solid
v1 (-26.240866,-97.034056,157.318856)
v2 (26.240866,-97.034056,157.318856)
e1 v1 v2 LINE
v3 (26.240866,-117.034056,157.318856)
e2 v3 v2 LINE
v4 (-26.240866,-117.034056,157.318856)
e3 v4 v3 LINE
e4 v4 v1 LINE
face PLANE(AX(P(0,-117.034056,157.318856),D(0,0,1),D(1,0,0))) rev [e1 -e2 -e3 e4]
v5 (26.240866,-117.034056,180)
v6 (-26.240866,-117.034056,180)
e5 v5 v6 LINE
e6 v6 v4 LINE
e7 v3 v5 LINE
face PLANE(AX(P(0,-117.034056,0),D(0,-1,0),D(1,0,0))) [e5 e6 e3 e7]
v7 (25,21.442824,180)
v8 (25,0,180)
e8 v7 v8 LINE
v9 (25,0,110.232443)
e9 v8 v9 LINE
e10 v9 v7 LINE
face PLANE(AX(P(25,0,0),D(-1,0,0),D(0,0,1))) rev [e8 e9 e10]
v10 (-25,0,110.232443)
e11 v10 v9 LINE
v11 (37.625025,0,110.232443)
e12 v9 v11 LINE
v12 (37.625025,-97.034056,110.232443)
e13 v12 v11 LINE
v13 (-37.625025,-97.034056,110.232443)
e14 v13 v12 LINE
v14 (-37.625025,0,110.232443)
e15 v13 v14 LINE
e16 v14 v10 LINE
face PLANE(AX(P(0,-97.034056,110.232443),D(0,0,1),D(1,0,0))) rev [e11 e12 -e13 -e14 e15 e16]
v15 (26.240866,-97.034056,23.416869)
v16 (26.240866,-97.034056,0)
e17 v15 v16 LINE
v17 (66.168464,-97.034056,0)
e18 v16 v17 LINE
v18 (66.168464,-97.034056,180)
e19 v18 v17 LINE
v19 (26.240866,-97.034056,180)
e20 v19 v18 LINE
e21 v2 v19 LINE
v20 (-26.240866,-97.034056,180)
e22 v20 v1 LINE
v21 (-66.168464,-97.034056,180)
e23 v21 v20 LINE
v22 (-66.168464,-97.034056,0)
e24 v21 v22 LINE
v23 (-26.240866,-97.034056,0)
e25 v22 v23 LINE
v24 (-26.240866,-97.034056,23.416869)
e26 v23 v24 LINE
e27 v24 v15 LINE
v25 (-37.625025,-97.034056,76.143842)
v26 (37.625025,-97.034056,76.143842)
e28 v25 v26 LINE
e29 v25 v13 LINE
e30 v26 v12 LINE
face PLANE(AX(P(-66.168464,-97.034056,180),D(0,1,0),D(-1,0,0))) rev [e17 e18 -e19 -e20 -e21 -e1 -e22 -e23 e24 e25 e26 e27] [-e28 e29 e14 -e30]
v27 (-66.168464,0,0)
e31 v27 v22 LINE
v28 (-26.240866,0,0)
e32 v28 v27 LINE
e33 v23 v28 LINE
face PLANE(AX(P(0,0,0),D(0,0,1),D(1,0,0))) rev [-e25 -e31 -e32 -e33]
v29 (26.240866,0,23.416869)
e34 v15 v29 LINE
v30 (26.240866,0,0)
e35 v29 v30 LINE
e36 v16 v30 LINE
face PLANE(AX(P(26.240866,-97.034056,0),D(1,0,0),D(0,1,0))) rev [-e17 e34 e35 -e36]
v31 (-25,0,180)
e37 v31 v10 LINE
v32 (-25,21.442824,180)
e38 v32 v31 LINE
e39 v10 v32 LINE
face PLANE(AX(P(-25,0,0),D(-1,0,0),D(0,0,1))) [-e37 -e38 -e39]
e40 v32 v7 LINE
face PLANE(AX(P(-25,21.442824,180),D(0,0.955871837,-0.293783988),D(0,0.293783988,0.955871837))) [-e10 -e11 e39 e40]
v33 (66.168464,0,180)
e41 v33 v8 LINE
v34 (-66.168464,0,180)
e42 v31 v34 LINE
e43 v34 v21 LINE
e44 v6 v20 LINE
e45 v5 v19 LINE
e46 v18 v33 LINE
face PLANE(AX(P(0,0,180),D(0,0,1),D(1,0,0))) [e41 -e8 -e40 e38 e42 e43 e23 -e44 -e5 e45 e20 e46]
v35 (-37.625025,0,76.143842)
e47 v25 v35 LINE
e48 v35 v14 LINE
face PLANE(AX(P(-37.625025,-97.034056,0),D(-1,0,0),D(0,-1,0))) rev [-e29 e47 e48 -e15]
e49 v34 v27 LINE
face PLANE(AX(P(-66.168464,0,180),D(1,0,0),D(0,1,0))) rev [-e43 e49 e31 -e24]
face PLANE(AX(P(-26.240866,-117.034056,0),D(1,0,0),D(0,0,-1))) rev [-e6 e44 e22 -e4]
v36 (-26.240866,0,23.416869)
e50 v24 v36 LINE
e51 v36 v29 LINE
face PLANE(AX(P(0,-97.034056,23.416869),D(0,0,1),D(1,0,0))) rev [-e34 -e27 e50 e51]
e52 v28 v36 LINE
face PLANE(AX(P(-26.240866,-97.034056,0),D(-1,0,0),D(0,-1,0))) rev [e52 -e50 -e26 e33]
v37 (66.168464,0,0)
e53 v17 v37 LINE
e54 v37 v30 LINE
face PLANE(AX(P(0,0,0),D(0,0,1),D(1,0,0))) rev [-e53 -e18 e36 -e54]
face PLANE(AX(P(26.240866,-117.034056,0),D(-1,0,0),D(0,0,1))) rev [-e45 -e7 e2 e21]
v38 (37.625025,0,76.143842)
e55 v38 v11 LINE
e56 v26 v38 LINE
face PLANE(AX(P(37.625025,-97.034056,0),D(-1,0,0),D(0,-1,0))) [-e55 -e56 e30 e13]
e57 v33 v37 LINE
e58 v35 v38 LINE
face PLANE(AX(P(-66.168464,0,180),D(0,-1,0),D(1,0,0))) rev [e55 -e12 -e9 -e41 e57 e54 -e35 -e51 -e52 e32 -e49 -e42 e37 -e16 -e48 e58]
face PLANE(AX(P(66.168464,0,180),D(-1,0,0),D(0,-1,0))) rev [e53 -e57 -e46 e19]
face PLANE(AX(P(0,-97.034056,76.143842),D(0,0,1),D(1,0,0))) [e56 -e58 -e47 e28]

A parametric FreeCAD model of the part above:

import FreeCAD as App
import Part
import Sketcher

doc = App.newDocument("Part")
body = doc.addObject("PartDesign::Body", "Body")

sketch1 = body.newObject("Sketcher::SketchObject", "Sketch")
sketch1.AttachmentSupport = (doc.getObject("XY_Plane"), [""])
sketch1.MapMode = "FlatFace"
sketch1.addGeometry([
    Part.LineSegment(App.Vector(-66, 0, 0), App.Vector(-66, -97, 0)),
    Part.LineSegment(App.Vector(-66, -97, 0), App.Vector(66, -97, 0)),
    Part.LineSegment(App.Vector(66, -97, 0), App.Vector(66, 0, 0)),
    Part.LineSegment(App.Vector(66, 0, 0), App.Vector(-66, 0, 0)),
], False)
sketch1.addConstraint([
    Sketcher.Constraint("Coincident", 0, 2, 1, 1),
    Sketcher.Constraint("Coincident", 1, 2, 2, 1),
    Sketcher.Constraint("Coincident", 2, 2, 3, 1),
    Sketcher.Constraint("Coincident", 3, 2, 0, 1),
    Sketcher.Constraint("Vertical", 0),
    Sketcher.Constraint("Horizontal", 1),
    Sketcher.Constraint("Vertical", 2),
    Sketcher.Constraint("Horizontal", 3),
    Sketcher.Constraint("Symmetric", 2, 2, 3, 2, -1, 1),
    Sketcher.Constraint("DistanceX", 1, 1, 1, 2, 132.336929),
    Sketcher.Constraint("DistanceY", 0, 2, 0, 1, 97.034056),
])
pad1 = body.newObject("PartDesign::Pad", "Pad")
pad1.Profile = sketch1
pad1.Length = 180

sketch2 = body.newObject("Sketcher::SketchObject", "Sketch001")
sketch2.AttachmentSupport = (doc.getObject("XZ_Plane"), [""])
sketch2.MapMode = "FlatFace"
sketch2.addGeometry([
    Part.LineSegment(App.Vector(-38, 76, 0), App.Vector(-38, 110, 0)),
    Part.LineSegment(App.Vector(-38, 110, 0), App.Vector(38, 110, 0)),
    Part.LineSegment(App.Vector(38, 110, 0), App.Vector(38, 76, 0)),
    Part.LineSegment(App.Vector(38, 76, 0), App.Vector(-38, 76, 0)),
    Part.LineSegment(App.Vector(26, 23, 0), App.Vector(26, 0, 0)),
    Part.LineSegment(App.Vector(26, 0, 0), App.Vector(-26, 0, 0)),
    Part.LineSegment(App.Vector(-26, 0, 0), App.Vector(-26, 23, 0)),
    Part.LineSegment(App.Vector(-26, 23, 0), App.Vector(26, 23, 0)),
], False)
sketch2.addConstraint([
    Sketcher.Constraint("Coincident", 0, 2, 1, 1),
    Sketcher.Constraint("Coincident", 1, 2, 2, 1),
    Sketcher.Constraint("Coincident", 2, 2, 3, 1),
    Sketcher.Constraint("Coincident", 3, 2, 0, 1),
    Sketcher.Constraint("Coincident", 4, 2, 5, 1),
    Sketcher.Constraint("Coincident", 5, 2, 6, 1),
    Sketcher.Constraint("Coincident", 6, 2, 7, 1),
    Sketcher.Constraint("Coincident", 7, 2, 4, 1),
    Sketcher.Constraint("Vertical", 0),
    Sketcher.Constraint("Horizontal", 1),
    Sketcher.Constraint("Vertical", 2),
    Sketcher.Constraint("Horizontal", 3),
    Sketcher.Constraint("Vertical", 4),
    Sketcher.Constraint("Horizontal", 5),
    Sketcher.Constraint("Vertical", 6),
    Sketcher.Constraint("Horizontal", 7),
    Sketcher.Constraint("Symmetric", 4, 2, 5, 2, -1, 1),
    Sketcher.Constraint("DistanceY", 0, 1, 0, 2, 34.088601),
    Sketcher.Constraint("DistanceX", 1, 1, 1, 2, 75.250051),
    Sketcher.Constraint("DistanceX", 5, 2, 5, 1, 52.481731),
    Sketcher.Constraint("DistanceY", 4, 2, 4, 1, 23.416869),
    Sketcher.Constraint("DistanceY", -1, 1, 2, 2, 76.143842),
    Sketcher.Constraint("DistanceX", 4, 2, 2, 2, 11.38416),
])
pocket1 = body.newObject("PartDesign::Pocket", "Pocket")
pocket1.Profile = sketch2
pocket1.Type = "ThroughAll"
pocket1.Reversed = True

sketch3 = body.newObject("Sketcher::SketchObject", "Sketch002")
sketch3.AttachmentSupport = (doc.getObject("XZ_Plane"), [""])
sketch3.MapMode = "FlatFace"
sketch3.AttachmentOffset = App.Placement(App.Vector(0, 0, 97.034056), App.Rotation())
sketch3.addGeometry([
    Part.LineSegment(App.Vector(-26, 180, 0), App.Vector(-26, 157, 0)),
    Part.LineSegment(App.Vector(-26, 157, 0), App.Vector(26, 157, 0)),
    Part.LineSegment(App.Vector(26, 157, 0), App.Vector(26, 180, 0)),
    Part.LineSegment(App.Vector(26, 180, 0), App.Vector(-26, 180, 0)),
], False)
sketch3.addConstraint([
    Sketcher.Constraint("Coincident", 0, 2, 1, 1),
    Sketcher.Constraint("Coincident", 1, 2, 2, 1),
    Sketcher.Constraint("Coincident", 2, 2, 3, 1),
    Sketcher.Constraint("Coincident", 3, 2, 0, 1),
    Sketcher.Constraint("Vertical", 0),
    Sketcher.Constraint("Horizontal", 1),
    Sketcher.Constraint("Vertical", 2),
    Sketcher.Constraint("Horizontal", 3),
    Sketcher.Constraint("DistanceY", -1, 1, 2, 2, 180.0),
    Sketcher.Constraint("DistanceX", 1, 1, 1, 2, 52.481731),
    Sketcher.Constraint("DistanceY", 0, 2, 0, 1, 22.681144),
    Sketcher.Constraint("DistanceX", 0, 2, -1, 1, 26.240866),
])
pad2 = body.newObject("PartDesign::Pad", "Pad001")
pad2.Profile = sketch3
pad2.Length = 20

sketch4 = body.newObject("Sketcher::SketchObject", "Sketch003")
sketch4.AttachmentSupport = (doc.getObject("YZ_Plane"), [""])
sketch4.MapMode = "FlatFace"
sketch4.addGeometry([
    Part.LineSegment(App.Vector(21, 180, 0), App.Vector(0, 180, 0)),
    Part.LineSegment(App.Vector(0, 180, 0), App.Vector(0, 110, 0)),
    Part.LineSegment(App.Vector(0, 110, 0), App.Vector(21, 180, 0)),
], False)
sketch4.addConstraint([
    Sketcher.Constraint("Coincident", 0, 2, 1, 1),
    Sketcher.Constraint("Coincident", 1, 2, 2, 1),
    Sketcher.Constraint("Coincident", 2, 2, 0, 1),
    Sketcher.Constraint("Horizontal", 0),
    Sketcher.Constraint("Vertical", 1),
    Sketcher.Constraint("PointOnObject", 0, 2, -2),
    Sketcher.Constraint("DistanceY", -1, 1, 0, 2, 180.0),
    Sketcher.Constraint("Distance", 2, 72.988401),
    Sketcher.Constraint("DistanceX", 0, 2, 0, 1, 21.442824),
])
pad3 = body.newObject("PartDesign::Pad", "Pad002")
pad3.Profile = sketch4
pad3.Type = "TwoLengths"
pad3.Length = 25
pad3.Length2 = 25

doc.recompute()
